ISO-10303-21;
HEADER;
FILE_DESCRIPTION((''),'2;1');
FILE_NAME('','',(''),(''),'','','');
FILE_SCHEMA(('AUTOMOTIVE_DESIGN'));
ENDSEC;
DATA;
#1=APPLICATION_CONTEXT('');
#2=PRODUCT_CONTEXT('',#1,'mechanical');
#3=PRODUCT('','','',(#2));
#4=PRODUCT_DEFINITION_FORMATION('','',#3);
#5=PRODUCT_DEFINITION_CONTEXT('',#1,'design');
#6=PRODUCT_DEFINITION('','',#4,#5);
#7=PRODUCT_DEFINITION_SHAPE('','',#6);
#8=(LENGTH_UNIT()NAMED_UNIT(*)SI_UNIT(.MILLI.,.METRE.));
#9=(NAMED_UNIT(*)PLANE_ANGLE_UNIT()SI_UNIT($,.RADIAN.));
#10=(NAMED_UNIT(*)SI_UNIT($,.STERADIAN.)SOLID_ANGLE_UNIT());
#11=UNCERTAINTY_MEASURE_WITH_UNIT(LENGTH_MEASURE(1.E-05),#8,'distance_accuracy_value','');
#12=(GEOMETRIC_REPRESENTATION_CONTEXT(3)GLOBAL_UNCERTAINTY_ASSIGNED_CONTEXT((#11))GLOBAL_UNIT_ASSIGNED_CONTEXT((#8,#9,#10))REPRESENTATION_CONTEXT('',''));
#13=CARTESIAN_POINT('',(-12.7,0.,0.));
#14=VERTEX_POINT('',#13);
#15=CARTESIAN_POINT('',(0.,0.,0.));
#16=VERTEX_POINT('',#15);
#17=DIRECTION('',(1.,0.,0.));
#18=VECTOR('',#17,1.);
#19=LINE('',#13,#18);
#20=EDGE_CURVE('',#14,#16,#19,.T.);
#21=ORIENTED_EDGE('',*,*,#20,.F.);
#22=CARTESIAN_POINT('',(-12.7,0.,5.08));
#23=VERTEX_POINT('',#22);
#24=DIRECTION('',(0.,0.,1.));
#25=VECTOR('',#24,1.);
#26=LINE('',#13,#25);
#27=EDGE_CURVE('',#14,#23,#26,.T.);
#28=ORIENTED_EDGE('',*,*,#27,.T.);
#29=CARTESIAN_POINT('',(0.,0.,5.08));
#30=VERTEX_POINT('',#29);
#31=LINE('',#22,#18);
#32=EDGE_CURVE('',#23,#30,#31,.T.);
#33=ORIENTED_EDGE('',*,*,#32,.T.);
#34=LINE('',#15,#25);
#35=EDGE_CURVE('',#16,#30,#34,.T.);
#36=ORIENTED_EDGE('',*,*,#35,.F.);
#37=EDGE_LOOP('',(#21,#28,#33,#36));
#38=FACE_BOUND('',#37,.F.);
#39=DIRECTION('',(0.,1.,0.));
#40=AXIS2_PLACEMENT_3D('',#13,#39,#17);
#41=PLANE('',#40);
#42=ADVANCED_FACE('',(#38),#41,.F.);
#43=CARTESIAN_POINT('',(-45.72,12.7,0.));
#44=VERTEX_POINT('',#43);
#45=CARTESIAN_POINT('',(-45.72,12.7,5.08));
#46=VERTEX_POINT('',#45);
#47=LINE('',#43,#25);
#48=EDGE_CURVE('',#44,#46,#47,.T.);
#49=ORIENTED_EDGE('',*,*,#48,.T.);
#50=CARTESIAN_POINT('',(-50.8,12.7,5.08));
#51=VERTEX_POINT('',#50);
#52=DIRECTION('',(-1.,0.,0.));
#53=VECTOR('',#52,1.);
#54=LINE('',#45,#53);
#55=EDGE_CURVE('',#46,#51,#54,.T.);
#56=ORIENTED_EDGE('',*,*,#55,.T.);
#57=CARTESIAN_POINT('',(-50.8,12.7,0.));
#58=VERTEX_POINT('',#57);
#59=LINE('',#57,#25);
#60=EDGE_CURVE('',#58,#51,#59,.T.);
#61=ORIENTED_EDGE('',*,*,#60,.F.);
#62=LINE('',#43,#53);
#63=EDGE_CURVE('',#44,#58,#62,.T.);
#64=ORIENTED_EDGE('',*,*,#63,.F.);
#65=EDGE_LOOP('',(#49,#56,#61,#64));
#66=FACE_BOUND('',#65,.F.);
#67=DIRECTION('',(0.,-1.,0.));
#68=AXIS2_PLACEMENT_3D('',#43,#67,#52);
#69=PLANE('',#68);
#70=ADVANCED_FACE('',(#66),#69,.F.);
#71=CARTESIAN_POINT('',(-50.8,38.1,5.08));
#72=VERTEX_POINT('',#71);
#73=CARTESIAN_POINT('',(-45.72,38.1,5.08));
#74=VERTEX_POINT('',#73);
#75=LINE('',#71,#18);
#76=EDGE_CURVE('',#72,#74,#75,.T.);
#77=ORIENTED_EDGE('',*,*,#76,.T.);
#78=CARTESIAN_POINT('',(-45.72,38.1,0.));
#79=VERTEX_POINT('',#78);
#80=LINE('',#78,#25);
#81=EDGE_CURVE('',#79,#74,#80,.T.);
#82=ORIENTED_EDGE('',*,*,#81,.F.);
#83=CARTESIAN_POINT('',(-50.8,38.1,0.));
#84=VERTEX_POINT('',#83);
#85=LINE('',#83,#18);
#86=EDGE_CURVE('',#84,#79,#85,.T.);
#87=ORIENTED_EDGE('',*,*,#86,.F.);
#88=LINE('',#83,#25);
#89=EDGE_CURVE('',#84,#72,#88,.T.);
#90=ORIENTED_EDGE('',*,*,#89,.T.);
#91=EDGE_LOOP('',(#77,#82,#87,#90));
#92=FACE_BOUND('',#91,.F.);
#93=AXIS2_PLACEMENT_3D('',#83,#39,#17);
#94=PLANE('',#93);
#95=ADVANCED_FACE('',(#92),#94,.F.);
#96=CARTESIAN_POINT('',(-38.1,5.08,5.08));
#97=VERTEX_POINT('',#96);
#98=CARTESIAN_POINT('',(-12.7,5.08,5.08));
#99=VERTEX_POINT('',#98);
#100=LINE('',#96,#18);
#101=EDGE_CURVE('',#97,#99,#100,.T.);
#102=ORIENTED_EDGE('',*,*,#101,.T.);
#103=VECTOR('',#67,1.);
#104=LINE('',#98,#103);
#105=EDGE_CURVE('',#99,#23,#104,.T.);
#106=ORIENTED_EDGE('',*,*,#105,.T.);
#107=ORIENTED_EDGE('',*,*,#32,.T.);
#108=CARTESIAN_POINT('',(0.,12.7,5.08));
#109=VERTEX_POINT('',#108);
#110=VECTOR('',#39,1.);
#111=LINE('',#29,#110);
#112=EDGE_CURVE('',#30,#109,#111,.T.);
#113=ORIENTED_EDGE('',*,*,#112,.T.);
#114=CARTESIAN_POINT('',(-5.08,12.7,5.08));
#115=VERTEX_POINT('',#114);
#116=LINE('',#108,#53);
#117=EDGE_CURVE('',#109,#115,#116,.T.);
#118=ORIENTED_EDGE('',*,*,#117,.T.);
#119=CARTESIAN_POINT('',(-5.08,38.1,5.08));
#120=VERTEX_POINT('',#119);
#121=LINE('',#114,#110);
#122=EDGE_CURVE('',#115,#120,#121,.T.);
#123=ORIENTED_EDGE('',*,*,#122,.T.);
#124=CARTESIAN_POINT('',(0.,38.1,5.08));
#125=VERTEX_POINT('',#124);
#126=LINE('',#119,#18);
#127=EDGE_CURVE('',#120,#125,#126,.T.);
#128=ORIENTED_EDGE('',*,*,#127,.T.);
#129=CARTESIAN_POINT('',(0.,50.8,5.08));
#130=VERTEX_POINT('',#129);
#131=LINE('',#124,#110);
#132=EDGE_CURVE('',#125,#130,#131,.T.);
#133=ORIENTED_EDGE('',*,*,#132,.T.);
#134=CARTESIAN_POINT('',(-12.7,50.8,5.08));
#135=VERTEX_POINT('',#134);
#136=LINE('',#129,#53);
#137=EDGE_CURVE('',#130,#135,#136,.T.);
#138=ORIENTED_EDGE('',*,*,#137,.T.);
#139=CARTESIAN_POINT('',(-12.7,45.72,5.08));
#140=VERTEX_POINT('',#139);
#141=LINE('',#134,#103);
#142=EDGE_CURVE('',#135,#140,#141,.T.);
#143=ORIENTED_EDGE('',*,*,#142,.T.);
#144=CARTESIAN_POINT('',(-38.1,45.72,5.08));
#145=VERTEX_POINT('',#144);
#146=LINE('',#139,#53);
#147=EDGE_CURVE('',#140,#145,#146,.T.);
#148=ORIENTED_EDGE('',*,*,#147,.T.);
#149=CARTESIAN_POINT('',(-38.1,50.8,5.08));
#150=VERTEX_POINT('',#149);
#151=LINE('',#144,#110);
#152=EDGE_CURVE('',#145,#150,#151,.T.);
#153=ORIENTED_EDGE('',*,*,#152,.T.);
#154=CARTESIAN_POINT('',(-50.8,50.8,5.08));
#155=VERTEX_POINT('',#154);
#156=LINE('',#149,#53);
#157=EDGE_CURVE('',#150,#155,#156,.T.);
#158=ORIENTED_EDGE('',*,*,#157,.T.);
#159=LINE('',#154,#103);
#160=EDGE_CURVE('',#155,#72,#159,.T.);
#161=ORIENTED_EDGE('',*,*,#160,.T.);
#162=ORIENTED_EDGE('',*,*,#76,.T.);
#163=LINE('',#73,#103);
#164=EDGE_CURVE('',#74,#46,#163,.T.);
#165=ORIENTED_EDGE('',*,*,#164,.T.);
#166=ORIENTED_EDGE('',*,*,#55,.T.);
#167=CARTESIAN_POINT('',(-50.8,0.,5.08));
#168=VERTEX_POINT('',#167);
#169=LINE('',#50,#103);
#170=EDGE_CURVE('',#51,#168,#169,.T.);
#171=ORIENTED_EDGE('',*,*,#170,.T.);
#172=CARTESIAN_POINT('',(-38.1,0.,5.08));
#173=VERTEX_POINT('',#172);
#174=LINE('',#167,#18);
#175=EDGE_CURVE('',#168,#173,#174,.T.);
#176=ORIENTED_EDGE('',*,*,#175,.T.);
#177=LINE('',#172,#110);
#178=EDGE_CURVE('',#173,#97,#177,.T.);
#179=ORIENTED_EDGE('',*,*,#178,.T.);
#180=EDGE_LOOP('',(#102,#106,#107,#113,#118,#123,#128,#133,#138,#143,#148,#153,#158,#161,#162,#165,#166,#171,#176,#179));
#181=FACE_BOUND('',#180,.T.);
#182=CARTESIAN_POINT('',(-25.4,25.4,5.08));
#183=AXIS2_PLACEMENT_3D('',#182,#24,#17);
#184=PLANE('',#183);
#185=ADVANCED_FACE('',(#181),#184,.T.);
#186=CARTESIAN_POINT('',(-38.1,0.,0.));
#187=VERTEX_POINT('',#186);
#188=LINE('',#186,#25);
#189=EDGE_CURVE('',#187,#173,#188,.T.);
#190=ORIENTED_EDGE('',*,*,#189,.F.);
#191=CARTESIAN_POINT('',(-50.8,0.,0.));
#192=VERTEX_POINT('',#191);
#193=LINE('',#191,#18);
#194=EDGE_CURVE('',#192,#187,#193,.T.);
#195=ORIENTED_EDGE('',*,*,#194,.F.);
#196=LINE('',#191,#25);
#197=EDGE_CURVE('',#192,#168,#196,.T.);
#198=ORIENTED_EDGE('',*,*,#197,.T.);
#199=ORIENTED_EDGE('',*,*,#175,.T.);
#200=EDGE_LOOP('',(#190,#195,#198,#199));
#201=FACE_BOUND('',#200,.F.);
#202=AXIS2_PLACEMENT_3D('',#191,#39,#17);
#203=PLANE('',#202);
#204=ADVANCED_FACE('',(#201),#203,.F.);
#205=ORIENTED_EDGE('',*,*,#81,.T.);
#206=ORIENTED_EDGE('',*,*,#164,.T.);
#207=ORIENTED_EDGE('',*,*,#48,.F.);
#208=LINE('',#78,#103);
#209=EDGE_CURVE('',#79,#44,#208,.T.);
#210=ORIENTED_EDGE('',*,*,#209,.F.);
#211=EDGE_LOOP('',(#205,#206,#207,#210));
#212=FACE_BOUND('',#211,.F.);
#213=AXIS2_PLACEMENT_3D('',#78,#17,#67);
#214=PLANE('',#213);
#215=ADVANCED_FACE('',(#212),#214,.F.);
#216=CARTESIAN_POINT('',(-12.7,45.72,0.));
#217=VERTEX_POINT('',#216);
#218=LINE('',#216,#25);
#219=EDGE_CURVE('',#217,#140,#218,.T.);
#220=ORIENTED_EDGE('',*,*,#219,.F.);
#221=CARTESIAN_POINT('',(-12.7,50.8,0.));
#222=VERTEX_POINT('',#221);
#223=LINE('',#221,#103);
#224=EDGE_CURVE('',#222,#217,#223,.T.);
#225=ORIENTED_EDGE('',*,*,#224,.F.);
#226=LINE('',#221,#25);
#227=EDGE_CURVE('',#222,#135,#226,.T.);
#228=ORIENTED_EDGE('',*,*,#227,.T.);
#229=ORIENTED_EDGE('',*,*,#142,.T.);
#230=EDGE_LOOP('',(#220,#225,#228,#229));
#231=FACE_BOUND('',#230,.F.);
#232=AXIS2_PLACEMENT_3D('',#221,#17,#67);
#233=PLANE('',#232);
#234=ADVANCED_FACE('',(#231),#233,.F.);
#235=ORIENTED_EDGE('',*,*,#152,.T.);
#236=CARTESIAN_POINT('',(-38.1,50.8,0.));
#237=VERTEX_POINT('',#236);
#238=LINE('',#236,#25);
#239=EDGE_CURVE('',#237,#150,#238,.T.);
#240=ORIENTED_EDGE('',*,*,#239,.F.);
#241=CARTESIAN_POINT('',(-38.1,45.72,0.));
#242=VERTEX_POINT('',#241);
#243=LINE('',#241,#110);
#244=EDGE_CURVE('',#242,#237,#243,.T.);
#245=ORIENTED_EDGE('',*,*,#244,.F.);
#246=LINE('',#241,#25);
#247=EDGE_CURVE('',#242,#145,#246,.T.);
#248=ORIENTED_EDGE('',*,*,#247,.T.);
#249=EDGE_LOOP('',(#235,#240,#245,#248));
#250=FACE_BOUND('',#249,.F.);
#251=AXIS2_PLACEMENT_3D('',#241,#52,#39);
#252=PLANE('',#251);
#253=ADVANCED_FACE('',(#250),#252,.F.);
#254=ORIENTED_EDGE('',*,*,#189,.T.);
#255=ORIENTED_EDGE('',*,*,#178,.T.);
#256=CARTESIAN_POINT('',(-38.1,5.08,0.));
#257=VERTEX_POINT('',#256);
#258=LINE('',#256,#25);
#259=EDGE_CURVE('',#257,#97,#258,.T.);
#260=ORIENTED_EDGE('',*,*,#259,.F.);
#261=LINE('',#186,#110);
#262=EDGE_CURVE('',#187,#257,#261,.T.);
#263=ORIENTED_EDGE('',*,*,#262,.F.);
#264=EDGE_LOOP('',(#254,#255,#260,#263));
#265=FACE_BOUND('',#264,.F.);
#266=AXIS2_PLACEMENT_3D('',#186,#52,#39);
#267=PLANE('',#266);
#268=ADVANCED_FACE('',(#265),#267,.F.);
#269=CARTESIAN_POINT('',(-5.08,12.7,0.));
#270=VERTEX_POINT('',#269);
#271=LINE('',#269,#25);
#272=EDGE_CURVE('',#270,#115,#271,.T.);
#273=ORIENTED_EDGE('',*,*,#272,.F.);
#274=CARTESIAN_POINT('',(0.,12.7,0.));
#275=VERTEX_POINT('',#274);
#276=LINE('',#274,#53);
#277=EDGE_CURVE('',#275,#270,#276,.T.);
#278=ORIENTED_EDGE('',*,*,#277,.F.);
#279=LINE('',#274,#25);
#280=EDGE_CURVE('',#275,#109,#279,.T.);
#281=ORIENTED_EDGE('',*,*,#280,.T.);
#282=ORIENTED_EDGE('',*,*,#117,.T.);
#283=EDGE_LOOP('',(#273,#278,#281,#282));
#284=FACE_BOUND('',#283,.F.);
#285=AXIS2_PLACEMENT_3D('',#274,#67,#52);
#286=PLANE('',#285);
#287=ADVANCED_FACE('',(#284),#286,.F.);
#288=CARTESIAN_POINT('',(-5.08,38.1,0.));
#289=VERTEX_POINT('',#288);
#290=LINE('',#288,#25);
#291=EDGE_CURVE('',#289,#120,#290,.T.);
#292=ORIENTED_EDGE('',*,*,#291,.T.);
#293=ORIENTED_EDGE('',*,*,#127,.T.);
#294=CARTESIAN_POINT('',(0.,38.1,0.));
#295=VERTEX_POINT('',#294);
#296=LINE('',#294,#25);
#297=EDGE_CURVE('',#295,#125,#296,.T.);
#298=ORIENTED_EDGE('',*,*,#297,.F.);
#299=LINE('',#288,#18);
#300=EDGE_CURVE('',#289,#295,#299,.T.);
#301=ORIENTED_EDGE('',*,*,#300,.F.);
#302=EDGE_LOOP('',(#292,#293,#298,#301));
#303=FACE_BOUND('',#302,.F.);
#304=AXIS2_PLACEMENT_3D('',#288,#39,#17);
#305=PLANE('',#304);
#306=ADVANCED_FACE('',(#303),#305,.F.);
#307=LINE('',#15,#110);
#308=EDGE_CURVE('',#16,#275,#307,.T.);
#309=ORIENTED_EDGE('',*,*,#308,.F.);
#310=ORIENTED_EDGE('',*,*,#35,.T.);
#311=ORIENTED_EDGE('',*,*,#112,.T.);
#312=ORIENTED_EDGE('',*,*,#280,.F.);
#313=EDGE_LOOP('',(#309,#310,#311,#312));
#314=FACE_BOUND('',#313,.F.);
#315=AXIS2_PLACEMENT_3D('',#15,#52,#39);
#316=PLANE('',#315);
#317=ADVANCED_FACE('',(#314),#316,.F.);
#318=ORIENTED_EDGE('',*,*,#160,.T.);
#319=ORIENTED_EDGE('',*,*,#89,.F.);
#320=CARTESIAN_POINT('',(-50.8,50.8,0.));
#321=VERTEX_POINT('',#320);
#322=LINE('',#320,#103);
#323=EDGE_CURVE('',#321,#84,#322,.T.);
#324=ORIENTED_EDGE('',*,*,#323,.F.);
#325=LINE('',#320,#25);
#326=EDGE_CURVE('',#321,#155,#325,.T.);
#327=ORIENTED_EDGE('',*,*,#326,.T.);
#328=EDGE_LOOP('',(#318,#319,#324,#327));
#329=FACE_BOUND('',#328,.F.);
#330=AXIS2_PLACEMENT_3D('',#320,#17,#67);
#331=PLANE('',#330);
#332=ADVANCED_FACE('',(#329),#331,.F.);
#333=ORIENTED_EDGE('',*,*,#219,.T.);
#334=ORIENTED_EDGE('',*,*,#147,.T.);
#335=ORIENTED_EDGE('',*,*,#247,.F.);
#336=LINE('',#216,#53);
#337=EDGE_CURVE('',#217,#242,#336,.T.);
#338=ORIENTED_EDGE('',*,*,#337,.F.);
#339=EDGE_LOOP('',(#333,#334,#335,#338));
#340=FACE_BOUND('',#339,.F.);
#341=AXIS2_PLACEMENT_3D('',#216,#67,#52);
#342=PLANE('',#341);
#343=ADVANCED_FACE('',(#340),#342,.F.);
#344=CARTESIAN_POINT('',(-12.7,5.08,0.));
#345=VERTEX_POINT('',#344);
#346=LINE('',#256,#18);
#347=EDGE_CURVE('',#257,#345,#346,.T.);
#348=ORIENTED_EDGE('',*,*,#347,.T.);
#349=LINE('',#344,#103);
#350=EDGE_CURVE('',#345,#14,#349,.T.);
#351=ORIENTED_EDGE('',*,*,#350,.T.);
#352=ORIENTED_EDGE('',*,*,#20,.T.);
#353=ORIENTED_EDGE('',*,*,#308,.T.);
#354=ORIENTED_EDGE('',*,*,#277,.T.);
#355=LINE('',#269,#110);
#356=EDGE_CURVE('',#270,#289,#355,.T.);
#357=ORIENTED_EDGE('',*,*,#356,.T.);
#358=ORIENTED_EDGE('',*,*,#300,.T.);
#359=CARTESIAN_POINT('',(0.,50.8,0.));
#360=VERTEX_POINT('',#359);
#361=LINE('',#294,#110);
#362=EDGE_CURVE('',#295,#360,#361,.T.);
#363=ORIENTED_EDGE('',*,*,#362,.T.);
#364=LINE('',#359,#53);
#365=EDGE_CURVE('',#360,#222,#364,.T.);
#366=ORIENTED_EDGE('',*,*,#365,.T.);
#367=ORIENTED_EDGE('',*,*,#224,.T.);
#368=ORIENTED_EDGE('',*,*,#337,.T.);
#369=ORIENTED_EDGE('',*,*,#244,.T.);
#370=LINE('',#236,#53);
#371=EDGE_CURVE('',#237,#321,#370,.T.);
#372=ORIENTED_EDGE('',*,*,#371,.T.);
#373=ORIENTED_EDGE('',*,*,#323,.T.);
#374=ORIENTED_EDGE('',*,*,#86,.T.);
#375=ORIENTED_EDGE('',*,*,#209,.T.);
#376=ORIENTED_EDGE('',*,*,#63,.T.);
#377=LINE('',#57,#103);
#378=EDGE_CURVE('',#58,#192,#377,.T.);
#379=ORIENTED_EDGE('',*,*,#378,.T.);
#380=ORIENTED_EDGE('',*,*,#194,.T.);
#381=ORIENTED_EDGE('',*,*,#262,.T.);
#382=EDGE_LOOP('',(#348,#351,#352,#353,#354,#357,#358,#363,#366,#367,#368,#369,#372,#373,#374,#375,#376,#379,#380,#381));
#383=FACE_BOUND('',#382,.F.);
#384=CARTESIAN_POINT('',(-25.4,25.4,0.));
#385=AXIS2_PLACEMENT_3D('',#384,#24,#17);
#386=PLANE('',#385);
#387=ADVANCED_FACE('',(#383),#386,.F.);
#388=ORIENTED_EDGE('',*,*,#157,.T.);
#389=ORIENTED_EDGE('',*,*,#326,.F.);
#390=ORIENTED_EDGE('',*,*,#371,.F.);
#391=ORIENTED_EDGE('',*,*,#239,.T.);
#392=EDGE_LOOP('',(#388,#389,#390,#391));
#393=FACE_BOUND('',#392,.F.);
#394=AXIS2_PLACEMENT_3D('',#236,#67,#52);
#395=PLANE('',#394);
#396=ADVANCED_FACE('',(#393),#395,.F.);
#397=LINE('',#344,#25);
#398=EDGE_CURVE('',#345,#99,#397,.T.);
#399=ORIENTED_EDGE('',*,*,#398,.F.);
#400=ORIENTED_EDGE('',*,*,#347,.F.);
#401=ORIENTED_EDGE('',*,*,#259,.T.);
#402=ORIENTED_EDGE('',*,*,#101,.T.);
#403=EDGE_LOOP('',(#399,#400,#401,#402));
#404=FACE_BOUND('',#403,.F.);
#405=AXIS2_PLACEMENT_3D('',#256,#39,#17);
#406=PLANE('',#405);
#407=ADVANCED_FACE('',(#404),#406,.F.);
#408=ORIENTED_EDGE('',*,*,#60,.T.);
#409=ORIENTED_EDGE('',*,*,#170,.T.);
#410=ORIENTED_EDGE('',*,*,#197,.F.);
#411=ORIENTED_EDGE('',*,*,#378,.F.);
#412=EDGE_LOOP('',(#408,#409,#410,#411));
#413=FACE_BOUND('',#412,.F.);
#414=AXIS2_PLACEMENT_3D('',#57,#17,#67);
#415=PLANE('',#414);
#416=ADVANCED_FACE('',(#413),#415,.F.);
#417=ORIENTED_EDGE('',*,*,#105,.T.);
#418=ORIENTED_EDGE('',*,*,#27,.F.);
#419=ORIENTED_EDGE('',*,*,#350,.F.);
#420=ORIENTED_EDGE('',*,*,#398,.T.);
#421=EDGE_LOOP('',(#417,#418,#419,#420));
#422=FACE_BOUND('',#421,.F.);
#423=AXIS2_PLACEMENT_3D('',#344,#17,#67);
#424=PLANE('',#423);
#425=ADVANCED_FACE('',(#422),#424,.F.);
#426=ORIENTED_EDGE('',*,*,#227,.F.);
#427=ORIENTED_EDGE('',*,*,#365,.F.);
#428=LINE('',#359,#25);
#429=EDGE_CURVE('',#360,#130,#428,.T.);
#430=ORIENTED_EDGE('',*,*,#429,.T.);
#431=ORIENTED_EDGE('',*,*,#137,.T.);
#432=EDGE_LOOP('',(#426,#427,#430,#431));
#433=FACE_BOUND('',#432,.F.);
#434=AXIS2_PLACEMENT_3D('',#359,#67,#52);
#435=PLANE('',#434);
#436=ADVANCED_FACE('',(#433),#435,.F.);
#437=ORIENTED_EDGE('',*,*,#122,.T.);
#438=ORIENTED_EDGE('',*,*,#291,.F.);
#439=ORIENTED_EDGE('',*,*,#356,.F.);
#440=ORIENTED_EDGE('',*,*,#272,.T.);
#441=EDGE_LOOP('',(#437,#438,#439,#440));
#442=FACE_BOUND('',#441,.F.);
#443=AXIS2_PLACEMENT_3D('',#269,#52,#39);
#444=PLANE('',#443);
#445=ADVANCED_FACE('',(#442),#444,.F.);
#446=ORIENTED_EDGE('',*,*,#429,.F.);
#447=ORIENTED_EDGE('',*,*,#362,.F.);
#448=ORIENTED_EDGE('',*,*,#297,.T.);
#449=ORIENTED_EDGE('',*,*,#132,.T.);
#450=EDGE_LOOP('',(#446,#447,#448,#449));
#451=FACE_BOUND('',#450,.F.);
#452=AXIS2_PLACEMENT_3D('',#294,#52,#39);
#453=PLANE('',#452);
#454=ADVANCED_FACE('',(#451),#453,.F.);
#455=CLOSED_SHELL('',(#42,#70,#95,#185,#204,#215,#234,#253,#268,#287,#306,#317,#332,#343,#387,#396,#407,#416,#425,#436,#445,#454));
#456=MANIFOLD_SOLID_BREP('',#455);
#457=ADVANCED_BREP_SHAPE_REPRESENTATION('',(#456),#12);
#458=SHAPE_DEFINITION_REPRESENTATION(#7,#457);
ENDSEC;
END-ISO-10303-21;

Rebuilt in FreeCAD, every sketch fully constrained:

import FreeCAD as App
import Part
import Sketcher
Q = App.Units.Quantity


def add_polygon(sketch, points):
    """Adds a closed chain of lines whose ends are joined by coincident constraints."""
    first, n = sketch.GeometryCount, len(points)
    for a, b in zip(points, points[1:] + points[:1]):
        sketch.addGeometry(Part.LineSegment(App.Vector(*a, 0), App.Vector(*b, 0)), False)
    for i in range(n):
        sketch.addConstraint(Sketcher.Constraint("Coincident", first + i, 2, first + (i + 1) % n, 1))

doc = App.newDocument("Part")
params = doc.addObject("Spreadsheet::Sheet", "Params")
for row, (alias, value) in enumerate([
    ("sketch1_width", "1 in"),
    ("sketch1_width2", "0.5 in"),
    ("sketch1_width3", "0.2 in"),
    ("pad1_length", "0.2 in"),
], start=1):
    params.set(f"A{row}", alias)
    params.set(f"B{row}", "=" + value)
    params.setAlias(f"B{row}", alias)

body = doc.addObject("PartDesign::Body", "Body")

# Sketch on XY plane
sketch1 = body.newObject("Sketcher::SketchObject", "Sketch")
sketch1.AttachmentSupport = (doc.getObject("XY_Plane"), [""])
sketch1.MapMode = "FlatFace"
add_polygon(sketch1, [(-12.7, 0), (0, 0), (0, 12.7), (-5.08, 12.7), (-5.08, 38.1), (0, 38.1), (0, 50.8), (-12.7, 50.8), (-12.7, 45.72), (-38.1, 45.72), (-38.1, 50.8), (-50.8, 50.8), (-50.8, 38.1), (-45.72, 38.1), (-45.72, 12.7), (-50.8, 12.7), (-50.8, 0), (-38.1, 0), (-38.1, 5.08), (-12.7, 5.08)])  # lines 0-19
sketch1.addConstraint([
    Sketcher.Constraint("Horizontal", 0),
    Sketcher.Constraint("Vertical", 1),
    Sketcher.Constraint("Horizontal", 2),
    Sketcher.Constraint("Vertical", 3),
    Sketcher.Constraint("Horizontal", 4),
    Sketcher.Constraint("Vertical", 5),
    Sketcher.Constraint("Horizontal", 6),
    Sketcher.Constraint("Vertical", 7),
    Sketcher.Constraint("Horizontal", 8),
    Sketcher.Constraint("Vertical", 9),
    Sketcher.Constraint("Horizontal", 10),
    Sketcher.Constraint("Vertical", 11),
    Sketcher.Constraint("Horizontal", 12),
    Sketcher.Constraint("Vertical", 13),
    Sketcher.Constraint("Horizontal", 14),
    Sketcher.Constraint("Vertical", 15),
    Sketcher.Constraint("Horizontal", 16),
    Sketcher.Constraint("Vertical", 17),
    Sketcher.Constraint("Horizontal", 18),
    Sketcher.Constraint("Vertical", 19),
    Sketcher.Constraint("Coincident", 0, 2, -1, 1),
    Sketcher.Constraint("PointOnObject", 4, 2, -2),
    Sketcher.Constraint("PointOnObject", 15, 2, -1),
    Sketcher.Constraint("Horizontal", 6, 2, 9, 2),
    Sketcher.Constraint("Horizontal", 4, 2, 11, 2),
    Sketcher.Constraint("Horizontal", 2, 2, 13, 2),
    Sketcher.Constraint("Vertical", 11, 2, 14, 2),
    Sketcher.Constraint("Vertical", 9, 2, 16, 2),
    Sketcher.Constraint("Vertical", 7, 2, 18, 2),
    Sketcher.Constraint("Equal", 6, 10),
    Sketcher.Constraint("Equal", 4, 12),
    Sketcher.Constraint("Equal", 16, 1),
    Sketcher.Constraint("Equal", 18, 3),
    Sketcher.Constraint("Equal", 1, 5),
    Sketcher.Constraint("Equal", 14, 7),
    Sketcher.Constraint("Equal", 9, 17),
    Sketcher.Constraint("DistanceX", 8, 2, 8, 1, Q("1 in")),
    Sketcher.Constraint("DistanceX", 0, 1, 0, 2, Q("0.5 in")),
    Sketcher.Constraint("DistanceX", 2, 2, 2, 1, Q("0.2 in")),
])
sketch1.setExpression("Constraints[56]", "Params.sketch1_width")
sketch1.setExpression("Constraints[57]", "Params.sketch1_width2")
sketch1.setExpression("Constraints[58]", "Params.sketch1_width3")
pad1 = body.newObject("PartDesign::Pad", "Pad")
pad1.Profile = sketch1
pad1.setExpression("Length", "Params.pad1_length")

doc.recompute()
